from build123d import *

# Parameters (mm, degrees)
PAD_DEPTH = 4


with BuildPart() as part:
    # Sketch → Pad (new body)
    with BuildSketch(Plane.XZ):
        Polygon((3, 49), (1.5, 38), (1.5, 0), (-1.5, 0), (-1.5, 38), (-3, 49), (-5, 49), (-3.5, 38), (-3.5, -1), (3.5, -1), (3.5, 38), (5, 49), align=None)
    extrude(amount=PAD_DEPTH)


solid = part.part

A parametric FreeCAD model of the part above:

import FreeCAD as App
import Part
import Sketcher

V = App.Vector

doc = App.newDocument("Part")
params = doc.addObject("Spreadsheet::Sheet", "Params")
for row, (alias, value) in enumerate([
    ("sketch1_width", "3 mm"),
    ("sketch1_width2", "2 mm"),
    ("sketch1_height", "38 mm"),
    ("sketch1_height2", "39 mm"),
    ("pad1_length", "4 mm"),
], start=1):
    params.set(f"A{row}", alias)
    params.set(f"B{row}", "=" + value)
    params.setAlias(f"B{row}", alias)

body = doc.addObject("PartDesign::Body", "Body")

# Sketch on XZ plane
sketch1 = doc.addObject("Sketcher::SketchObject", "Sketch")
body.addObject(sketch1)
sketch1.AttachmentSupport = (doc.XZ_Plane, [""])
sketch1.MapMode = "FlatFace"
sketch1.addGeometry([
    Part.LineSegment(V(3, 49, 0), V(1.5, 38, 0)),  # 0
    Part.LineSegment(V(1.5, 38, 0), V(1.5, 0, 0)),  # 1
    Part.LineSegment(V(1.5, 0, 0), V(-1.5, 0, 0)),  # 2
    Part.LineSegment(V(-1.5, 0, 0), V(-1.5, 38, 0)),  # 3
    Part.LineSegment(V(-1.5, 38, 0), V(-3, 49, 0)),  # 4
    Part.LineSegment(V(-3, 49, 0), V(-5, 49, 0)),  # 5
    Part.LineSegment(V(-5, 49, 0), V(-3.5, 38, 0)),  # 6
    Part.LineSegment(V(-3.5, 38, 0), V(-3.5, -1, 0)),  # 7
    Part.LineSegment(V(-3.5, -1, 0), V(3.5, -1, 0)),  # 8
    Part.LineSegment(V(3.5, -1, 0), V(3.5, 38, 0)),  # 9
    Part.LineSegment(V(3.5, 38, 0), V(5, 49, 0)),  # 10
    Part.LineSegment(V(5, 49, 0), V(3, 49, 0)),  # 11
], False)
sketch1.addConstraint([
    Sketcher.Constraint("Coincident", 0, 2, 1, 1),
    Sketcher.Constraint("Coincident", 1, 2, 2, 1),
    Sketcher.Constraint("Coincident", 2, 2, 3, 1),
    Sketcher.Constraint("Coincident", 3, 2, 4, 1),
    Sketcher.Constraint("Coincident", 4, 2, 5, 1),
    Sketcher.Constraint("Coincident", 5, 2, 6, 1),
    Sketcher.Constraint("Coincident", 6, 2, 7, 1),
    Sketcher.Constraint("Coincident", 7, 2, 8, 1),
    Sketcher.Constraint("Coincident", 8, 2, 9, 1),
    Sketcher.Constraint("Coincident", 9, 2, 10, 1),
    Sketcher.Constraint("Coincident", 10, 2, 11, 1),
    Sketcher.Constraint("Coincident", 11, 2, 0, 1),
    Sketcher.Constraint("Vertical", 1),
    Sketcher.Constraint("Horizontal", 2),
    Sketcher.Constraint("Vertical", 3),
    Sketcher.Constraint("Horizontal", 5),
    Sketcher.Constraint("Vertical", 7),
    Sketcher.Constraint("Horizontal", 8),
    Sketcher.Constraint("Vertical", 9),
    Sketcher.Constraint("Horizontal", 11),
    Sketcher.Constraint("Symmetric", 1, 2, 2, 2, -1, 1),
    Sketcher.Constraint("Symmetric", 6, 2, 9, 2, -2),
    Sketcher.Constraint("Symmetric", 5, 2, 10, 2, -2),
    Sketcher.Constraint("Parallel", 4, 6),
    Sketcher.Constraint("Parallel", 0, 10),
    Sketcher.Constraint("Horizontal", 0, 2, 3, 2),
    Sketcher.Constraint("Horizontal", 3, 2, 6, 2),
    Sketcher.Constraint("DistanceX", 2, 2, 2, 1, 3.0),
    Sketcher.Constraint("DistanceX", 5, 2, 5, 1, 2.0),
    Sketcher.Constraint("DistanceY", 1, 2, 1, 1, 38.0),
    Sketcher.Constraint("DistanceY", 7, 2, 7, 1, 39.0),
    Sketcher.Constraint("DistanceX", 4, 2, -1, 1, 3.0),
    Sketcher.Constraint("DistanceY", -1, 1, 4, 2, 49.0),
])
sketch1.setExpression("Constraints[27]", "Params.sketch1_width")
sketch1.setExpression("Constraints[28]", "Params.sketch1_width2")
sketch1.setExpression("Constraints[29]", "Params.sketch1_height")
sketch1.setExpression("Constraints[30]", "Params.sketch1_height2")
pad1 = doc.addObject("PartDesign::Pad", "Pad")
body.addObject(pad1)
pad1.Profile = sketch1
pad1.setExpression("Length", "Params.pad1_length")

doc.recompute()
